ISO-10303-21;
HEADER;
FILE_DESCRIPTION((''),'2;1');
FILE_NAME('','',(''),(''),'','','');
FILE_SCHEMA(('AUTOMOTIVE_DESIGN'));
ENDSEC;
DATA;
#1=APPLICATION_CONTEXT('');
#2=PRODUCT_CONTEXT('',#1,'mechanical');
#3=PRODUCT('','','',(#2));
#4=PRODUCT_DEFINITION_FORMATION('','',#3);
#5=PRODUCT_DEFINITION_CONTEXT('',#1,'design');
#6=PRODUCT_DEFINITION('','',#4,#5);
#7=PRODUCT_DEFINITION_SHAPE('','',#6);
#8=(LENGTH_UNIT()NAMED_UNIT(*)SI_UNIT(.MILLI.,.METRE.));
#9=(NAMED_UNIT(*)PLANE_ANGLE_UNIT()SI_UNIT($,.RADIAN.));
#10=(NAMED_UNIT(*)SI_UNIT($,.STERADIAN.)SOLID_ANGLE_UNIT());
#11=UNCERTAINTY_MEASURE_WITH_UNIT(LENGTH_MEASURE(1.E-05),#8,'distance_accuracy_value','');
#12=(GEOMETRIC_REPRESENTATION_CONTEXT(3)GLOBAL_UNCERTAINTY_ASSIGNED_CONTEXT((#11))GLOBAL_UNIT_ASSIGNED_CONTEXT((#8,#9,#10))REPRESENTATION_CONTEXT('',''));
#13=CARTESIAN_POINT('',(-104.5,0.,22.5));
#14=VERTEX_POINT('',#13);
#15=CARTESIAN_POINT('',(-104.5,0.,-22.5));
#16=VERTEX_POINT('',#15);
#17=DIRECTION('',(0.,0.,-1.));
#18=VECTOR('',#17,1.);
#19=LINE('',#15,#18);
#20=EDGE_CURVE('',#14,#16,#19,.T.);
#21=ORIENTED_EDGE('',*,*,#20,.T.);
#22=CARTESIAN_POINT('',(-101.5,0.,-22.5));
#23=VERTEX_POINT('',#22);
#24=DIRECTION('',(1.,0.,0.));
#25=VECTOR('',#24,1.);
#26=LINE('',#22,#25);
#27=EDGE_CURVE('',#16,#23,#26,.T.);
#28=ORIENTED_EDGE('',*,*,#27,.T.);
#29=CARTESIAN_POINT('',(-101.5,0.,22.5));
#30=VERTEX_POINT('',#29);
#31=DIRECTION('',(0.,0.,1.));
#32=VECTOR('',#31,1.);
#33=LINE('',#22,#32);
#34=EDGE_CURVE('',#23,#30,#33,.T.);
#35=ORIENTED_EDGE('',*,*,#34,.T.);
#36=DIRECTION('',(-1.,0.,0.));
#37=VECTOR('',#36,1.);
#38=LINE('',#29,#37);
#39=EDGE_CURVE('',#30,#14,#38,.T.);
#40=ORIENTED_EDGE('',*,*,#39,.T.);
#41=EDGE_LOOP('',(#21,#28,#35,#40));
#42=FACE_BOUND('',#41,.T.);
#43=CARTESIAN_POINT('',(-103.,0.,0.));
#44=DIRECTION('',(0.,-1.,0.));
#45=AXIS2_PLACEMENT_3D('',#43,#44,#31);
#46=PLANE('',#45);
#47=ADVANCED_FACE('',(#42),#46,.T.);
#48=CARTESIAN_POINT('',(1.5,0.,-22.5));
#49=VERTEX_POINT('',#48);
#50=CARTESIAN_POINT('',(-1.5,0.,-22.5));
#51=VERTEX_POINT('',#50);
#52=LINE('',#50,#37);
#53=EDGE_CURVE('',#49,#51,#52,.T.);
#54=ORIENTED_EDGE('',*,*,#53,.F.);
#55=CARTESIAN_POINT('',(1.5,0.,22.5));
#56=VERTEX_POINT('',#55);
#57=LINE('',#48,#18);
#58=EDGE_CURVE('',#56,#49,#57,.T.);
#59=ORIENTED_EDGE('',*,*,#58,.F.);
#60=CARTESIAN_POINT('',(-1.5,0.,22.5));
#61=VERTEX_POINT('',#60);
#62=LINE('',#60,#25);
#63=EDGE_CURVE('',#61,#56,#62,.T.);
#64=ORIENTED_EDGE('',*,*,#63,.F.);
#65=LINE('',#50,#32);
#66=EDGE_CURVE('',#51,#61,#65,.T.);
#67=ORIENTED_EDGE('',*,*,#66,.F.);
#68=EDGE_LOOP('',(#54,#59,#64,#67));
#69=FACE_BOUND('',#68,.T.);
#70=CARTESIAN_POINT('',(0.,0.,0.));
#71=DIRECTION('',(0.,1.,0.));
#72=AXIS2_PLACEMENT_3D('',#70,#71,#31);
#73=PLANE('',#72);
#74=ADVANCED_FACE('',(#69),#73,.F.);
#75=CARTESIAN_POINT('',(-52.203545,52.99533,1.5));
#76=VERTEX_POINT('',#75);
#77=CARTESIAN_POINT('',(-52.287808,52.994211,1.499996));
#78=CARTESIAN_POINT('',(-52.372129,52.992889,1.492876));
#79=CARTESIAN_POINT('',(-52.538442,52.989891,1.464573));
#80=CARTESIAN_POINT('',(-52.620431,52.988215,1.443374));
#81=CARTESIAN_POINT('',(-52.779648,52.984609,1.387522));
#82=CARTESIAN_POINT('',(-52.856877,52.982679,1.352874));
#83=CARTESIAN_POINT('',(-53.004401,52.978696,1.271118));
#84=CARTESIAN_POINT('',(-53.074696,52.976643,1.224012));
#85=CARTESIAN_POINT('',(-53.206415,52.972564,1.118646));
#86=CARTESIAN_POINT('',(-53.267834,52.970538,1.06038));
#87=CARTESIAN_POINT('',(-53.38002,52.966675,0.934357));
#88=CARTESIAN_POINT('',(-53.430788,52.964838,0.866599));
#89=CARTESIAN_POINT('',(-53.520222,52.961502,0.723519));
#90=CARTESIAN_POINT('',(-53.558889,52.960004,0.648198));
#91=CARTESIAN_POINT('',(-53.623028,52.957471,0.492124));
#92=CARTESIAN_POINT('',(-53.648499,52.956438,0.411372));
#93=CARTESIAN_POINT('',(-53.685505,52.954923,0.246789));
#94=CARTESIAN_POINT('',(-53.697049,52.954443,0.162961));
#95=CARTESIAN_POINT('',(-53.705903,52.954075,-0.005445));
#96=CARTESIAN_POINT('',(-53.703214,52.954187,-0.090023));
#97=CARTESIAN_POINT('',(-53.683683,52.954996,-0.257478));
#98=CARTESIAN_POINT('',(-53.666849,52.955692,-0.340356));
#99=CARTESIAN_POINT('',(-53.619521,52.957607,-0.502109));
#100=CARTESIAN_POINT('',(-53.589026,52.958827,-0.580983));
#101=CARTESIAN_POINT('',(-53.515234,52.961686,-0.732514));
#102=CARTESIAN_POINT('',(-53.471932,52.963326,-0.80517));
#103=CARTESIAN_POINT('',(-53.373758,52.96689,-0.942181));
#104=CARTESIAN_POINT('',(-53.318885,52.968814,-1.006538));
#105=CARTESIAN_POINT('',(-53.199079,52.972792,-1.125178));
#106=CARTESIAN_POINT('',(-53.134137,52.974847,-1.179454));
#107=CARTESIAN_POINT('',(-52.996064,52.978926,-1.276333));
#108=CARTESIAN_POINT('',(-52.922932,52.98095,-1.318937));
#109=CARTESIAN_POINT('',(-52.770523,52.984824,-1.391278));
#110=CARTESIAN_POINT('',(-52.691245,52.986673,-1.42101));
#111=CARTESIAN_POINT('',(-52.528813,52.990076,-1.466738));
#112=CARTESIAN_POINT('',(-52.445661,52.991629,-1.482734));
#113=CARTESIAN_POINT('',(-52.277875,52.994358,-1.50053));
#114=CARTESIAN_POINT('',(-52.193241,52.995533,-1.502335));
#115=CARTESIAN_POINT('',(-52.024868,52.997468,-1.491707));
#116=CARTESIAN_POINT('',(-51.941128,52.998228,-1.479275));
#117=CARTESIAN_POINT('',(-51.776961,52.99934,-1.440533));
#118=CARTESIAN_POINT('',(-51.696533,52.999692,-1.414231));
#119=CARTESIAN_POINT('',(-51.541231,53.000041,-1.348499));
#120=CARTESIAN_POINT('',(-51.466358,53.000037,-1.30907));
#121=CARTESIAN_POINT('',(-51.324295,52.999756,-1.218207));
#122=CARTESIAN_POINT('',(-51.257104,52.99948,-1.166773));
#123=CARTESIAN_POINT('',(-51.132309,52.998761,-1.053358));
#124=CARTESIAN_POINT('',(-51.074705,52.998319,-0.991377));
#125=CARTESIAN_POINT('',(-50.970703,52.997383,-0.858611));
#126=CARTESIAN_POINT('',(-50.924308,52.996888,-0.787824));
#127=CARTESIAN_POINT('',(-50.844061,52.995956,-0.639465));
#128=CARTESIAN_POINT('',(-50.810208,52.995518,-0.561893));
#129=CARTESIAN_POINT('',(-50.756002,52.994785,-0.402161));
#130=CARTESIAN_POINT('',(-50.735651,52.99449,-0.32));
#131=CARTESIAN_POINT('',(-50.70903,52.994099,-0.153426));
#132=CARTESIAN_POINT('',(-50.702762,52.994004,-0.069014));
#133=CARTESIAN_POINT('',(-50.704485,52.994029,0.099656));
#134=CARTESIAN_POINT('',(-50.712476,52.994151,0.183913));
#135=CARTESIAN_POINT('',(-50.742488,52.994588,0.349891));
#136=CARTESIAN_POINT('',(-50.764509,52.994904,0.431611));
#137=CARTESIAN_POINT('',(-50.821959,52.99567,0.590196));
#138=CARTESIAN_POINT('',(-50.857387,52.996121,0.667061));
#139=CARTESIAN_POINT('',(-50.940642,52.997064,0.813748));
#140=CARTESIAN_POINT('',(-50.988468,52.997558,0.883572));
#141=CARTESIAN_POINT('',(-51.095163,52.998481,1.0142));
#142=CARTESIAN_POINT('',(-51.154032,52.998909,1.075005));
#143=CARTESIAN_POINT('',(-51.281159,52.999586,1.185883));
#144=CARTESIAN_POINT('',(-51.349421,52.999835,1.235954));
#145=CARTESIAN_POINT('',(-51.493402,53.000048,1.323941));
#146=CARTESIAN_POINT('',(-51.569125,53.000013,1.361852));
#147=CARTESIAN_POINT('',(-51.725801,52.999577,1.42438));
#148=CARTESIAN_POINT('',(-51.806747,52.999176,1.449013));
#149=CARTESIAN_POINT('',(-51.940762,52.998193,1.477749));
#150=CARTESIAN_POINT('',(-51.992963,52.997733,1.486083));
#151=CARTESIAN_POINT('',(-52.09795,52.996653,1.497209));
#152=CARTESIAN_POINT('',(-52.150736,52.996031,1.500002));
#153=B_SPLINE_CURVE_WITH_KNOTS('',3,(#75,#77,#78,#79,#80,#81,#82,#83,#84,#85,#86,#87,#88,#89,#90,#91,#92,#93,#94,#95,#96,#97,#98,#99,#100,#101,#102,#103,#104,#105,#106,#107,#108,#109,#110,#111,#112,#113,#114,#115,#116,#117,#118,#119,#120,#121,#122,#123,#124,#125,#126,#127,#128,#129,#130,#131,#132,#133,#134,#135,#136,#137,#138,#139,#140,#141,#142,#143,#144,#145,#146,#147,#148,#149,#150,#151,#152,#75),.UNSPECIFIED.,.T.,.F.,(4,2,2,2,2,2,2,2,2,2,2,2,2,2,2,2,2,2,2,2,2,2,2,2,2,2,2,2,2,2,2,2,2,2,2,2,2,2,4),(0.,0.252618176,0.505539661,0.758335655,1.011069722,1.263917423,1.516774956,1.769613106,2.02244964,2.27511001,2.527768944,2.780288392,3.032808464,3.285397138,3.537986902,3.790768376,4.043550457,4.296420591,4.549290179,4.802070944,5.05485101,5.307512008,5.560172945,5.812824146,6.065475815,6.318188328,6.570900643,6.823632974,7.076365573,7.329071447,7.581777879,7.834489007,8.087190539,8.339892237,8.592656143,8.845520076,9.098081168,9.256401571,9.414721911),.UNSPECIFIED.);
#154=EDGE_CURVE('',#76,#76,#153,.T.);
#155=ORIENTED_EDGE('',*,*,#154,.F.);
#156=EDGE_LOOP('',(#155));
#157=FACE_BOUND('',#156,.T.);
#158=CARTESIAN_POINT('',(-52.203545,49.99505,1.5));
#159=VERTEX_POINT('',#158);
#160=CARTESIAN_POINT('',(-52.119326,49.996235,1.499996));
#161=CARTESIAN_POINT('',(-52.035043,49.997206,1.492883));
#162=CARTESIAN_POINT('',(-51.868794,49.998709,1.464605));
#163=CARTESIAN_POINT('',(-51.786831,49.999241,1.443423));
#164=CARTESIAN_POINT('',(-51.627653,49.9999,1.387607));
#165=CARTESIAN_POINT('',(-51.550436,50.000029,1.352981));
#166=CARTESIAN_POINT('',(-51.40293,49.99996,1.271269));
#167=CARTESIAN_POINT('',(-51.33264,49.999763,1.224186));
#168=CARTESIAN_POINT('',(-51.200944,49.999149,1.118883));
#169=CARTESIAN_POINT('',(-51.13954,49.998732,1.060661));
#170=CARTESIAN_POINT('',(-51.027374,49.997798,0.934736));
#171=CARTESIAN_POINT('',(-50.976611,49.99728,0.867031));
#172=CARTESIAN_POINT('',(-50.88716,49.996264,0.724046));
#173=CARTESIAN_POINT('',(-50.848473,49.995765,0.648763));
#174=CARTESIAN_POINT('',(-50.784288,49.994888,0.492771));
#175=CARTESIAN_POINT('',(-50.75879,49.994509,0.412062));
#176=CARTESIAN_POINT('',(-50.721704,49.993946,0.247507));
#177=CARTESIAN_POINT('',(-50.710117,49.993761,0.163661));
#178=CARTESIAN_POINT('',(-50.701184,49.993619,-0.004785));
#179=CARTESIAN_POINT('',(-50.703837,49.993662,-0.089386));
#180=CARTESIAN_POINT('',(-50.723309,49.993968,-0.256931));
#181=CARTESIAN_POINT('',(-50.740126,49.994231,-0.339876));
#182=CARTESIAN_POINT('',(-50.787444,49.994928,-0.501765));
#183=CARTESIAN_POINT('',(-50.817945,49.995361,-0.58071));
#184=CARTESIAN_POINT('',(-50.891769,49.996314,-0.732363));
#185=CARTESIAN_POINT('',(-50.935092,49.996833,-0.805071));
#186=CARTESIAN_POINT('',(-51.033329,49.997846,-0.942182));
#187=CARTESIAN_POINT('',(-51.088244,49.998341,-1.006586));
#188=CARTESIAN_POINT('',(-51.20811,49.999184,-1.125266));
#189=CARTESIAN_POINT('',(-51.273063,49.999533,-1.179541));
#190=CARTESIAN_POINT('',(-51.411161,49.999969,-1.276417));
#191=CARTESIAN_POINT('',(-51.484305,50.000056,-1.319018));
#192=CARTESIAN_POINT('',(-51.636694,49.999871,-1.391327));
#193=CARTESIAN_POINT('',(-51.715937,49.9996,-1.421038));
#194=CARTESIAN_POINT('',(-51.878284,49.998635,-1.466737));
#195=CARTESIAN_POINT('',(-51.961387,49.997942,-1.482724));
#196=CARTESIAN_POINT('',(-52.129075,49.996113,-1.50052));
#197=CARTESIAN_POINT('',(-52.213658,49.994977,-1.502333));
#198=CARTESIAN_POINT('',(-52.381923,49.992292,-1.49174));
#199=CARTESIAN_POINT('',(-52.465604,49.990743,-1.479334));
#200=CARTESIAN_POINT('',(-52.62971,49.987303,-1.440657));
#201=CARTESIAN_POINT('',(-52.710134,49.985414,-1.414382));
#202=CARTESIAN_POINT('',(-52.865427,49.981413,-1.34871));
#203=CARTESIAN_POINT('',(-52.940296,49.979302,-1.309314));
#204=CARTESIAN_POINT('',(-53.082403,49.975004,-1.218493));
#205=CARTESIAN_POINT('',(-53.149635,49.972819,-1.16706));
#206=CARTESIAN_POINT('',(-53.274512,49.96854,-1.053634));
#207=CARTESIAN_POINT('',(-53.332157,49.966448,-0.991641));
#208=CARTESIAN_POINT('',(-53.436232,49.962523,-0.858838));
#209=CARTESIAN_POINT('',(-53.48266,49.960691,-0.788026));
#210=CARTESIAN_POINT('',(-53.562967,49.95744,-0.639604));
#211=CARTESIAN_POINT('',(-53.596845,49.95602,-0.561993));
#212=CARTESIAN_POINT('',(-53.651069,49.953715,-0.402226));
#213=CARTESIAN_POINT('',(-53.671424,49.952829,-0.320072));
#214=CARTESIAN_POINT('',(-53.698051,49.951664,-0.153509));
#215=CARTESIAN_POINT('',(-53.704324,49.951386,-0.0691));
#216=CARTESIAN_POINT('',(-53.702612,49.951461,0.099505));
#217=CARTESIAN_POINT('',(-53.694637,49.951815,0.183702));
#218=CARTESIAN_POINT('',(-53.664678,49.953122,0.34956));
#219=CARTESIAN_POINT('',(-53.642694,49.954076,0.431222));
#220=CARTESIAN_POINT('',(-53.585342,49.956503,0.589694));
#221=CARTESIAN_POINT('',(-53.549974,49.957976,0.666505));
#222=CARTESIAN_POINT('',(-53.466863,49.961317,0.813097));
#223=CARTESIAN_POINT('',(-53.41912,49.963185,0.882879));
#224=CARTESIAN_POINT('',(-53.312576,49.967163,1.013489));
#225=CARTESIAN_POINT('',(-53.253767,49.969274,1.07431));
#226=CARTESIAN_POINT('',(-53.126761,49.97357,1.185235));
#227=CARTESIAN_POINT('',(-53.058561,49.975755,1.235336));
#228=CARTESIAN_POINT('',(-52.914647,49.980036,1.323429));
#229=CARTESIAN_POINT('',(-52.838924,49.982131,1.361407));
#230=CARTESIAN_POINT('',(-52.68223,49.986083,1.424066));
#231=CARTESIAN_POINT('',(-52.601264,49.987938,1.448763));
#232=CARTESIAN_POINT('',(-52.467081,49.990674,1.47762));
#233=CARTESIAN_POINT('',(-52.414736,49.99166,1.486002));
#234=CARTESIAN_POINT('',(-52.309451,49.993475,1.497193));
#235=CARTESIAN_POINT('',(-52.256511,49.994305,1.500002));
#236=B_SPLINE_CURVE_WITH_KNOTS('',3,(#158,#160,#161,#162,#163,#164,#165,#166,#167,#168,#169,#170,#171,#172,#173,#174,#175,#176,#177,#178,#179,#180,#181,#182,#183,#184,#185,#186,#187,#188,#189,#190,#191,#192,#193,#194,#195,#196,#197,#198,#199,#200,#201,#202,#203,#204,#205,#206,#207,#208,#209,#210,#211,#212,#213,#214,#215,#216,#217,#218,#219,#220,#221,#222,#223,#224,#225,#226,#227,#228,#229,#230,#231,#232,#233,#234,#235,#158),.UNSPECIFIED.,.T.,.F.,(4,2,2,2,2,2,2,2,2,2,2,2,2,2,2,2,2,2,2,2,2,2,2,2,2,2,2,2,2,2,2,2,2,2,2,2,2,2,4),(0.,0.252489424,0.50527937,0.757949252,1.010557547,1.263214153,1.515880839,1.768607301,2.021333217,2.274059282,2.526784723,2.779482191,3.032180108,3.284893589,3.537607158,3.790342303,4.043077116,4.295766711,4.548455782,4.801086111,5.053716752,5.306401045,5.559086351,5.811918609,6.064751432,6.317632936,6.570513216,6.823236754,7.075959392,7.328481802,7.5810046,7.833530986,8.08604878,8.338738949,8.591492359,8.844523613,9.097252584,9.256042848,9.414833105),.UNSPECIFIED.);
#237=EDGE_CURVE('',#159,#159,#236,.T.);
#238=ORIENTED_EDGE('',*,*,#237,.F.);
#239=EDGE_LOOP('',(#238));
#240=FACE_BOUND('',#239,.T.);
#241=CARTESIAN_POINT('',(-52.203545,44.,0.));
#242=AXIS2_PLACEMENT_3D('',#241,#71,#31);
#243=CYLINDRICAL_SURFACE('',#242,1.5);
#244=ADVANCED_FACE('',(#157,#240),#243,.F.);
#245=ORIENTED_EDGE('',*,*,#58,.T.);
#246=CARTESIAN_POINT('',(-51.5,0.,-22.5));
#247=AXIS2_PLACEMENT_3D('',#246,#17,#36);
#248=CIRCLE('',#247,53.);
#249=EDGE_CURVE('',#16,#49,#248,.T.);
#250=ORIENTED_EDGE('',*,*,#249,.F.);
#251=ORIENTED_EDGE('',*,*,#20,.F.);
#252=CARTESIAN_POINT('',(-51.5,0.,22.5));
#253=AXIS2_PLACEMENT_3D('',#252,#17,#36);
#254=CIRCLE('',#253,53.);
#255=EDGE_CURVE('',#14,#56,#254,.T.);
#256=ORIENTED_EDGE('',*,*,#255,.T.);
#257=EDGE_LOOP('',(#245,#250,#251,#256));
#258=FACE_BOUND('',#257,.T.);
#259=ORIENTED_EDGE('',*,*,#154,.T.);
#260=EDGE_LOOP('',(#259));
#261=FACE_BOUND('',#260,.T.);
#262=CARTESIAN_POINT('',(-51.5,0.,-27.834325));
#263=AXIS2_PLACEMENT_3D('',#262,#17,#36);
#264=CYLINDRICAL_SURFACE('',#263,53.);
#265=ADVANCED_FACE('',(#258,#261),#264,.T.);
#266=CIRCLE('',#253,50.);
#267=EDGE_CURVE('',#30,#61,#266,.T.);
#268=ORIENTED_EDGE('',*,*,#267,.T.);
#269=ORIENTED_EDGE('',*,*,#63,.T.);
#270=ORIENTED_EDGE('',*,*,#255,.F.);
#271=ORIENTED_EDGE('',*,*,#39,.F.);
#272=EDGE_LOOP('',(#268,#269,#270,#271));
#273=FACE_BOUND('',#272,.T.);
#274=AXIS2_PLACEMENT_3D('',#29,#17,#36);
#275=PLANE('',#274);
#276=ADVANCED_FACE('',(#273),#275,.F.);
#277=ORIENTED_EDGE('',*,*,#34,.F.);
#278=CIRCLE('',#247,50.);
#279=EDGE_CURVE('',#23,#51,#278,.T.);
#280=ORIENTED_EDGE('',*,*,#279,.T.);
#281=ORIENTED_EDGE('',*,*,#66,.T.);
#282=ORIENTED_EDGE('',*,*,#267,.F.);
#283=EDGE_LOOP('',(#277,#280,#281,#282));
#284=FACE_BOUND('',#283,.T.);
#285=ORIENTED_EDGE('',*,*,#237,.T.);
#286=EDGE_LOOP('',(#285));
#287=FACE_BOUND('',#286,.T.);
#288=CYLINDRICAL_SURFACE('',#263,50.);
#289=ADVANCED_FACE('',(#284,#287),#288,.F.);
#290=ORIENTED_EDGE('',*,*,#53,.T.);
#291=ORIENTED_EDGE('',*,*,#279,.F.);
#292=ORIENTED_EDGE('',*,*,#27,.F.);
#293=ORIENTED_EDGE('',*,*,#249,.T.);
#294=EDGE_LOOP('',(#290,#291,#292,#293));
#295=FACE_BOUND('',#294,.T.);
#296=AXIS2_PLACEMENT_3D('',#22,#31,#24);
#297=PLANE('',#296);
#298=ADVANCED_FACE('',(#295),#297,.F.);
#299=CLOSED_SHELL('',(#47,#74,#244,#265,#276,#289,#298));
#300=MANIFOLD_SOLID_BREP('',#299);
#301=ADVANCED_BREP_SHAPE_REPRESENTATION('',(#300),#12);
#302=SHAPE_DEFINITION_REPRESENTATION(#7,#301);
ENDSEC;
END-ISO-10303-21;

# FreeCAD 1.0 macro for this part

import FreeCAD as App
import Part
import Sketcher
Q = App.Units.Quantity

doc = App.newDocument("Part")
body = doc.addObject("PartDesign::Body", "Body")

sketch1 = body.newObject("Sketcher::SketchObject", "Sketch")
sketch1.AttachmentSupport = (doc.getObject("XZ_Plane"), [""])
sketch1.MapMode = "FlatFace"
sketch1.addGeometry([
    Part.LineSegment(App.Vector(-1.5, -22.5, 0), App.Vector(-1.5, 22.5, 0)),
    Part.LineSegment(App.Vector(-1.5, 22.5, 0), App.Vector(1.5, 22.5, 0)),
    Part.LineSegment(App.Vector(1.5, 22.5, 0), App.Vector(1.5, -22.5, 0)),
    Part.LineSegment(App.Vector(1.5, -22.5, 0), App.Vector(-1.5, -22.5, 0)),
], False)
sketch1.addGeometry(Part.LineSegment(App.Vector(-51.5, -22.5, 0), App.Vector(-51.5, 22.5, 0)), True)
sketch1.addConstraint([
    Sketcher.Constraint("Coincident", 0, 2, 1, 1),
    Sketcher.Constraint("Coincident", 1, 2, 2, 1),
    Sketcher.Constraint("Coincident", 2, 2, 3, 1),
    Sketcher.Constraint("Coincident", 3, 2, 0, 1),
    Sketcher.Constraint("Vertical", 0),
    Sketcher.Constraint("Horizontal", 1),
    Sketcher.Constraint("Vertical", 2),
    Sketcher.Constraint("Horizontal", 3),
    Sketcher.Constraint("Vertical", 4),
    Sketcher.Constraint("Symmetric", 0, 2, 2, 2, -1, 1),
    Sketcher.Constraint("Horizontal", 3, 2, 4, 1),
    Sketcher.Constraint("Horizontal", 1, 2, 4, 2),
    Sketcher.Constraint("DistanceX", 1, 1, 1, 2, Q("3 mm")),
    Sketcher.Constraint("DistanceY", 0, 1, 0, 2, Q("45 mm")),
    Sketcher.Constraint("DistanceX", 4, 1, 3, 2, Q("50 mm")),
])
revolution = body.newObject("PartDesign::Revolution", "Revolution")
revolution.Profile = sketch1
revolution.ReferenceAxis = (sketch1, ["Axis0"])
revolution.Angle = 180

sketch2 = body.newObject("Sketcher::SketchObject", "Sketch001")
sketch2.AttachmentSupport = (doc.getObject("XZ_Plane"), [""])
sketch2.MapMode = "FlatFace"
sketch2.AttachmentOffset = App.Placement(App.Vector(0, 0, -54), App.Rotation())
sketch2.addGeometry(Part.Circle(App.Vector(-52.2, 0, 0), App.Vector(0, 0, 1), 1.5), False)
sketch2.addConstraint([
    Sketcher.Constraint("PointOnObject", 0, 3, -1),
    Sketcher.Constraint("Diameter", 0, Q("3 mm")),
    Sketcher.Constraint("DistanceX", 0, 3, -1, 1, Q("52.203545 mm")),
])
pocket1 = body.newObject("PartDesign::Pocket", "Pocket")
pocket1.Profile = sketch2
pocket1.Length = 10
pocket1.Reversed = True

doc.recompute()
